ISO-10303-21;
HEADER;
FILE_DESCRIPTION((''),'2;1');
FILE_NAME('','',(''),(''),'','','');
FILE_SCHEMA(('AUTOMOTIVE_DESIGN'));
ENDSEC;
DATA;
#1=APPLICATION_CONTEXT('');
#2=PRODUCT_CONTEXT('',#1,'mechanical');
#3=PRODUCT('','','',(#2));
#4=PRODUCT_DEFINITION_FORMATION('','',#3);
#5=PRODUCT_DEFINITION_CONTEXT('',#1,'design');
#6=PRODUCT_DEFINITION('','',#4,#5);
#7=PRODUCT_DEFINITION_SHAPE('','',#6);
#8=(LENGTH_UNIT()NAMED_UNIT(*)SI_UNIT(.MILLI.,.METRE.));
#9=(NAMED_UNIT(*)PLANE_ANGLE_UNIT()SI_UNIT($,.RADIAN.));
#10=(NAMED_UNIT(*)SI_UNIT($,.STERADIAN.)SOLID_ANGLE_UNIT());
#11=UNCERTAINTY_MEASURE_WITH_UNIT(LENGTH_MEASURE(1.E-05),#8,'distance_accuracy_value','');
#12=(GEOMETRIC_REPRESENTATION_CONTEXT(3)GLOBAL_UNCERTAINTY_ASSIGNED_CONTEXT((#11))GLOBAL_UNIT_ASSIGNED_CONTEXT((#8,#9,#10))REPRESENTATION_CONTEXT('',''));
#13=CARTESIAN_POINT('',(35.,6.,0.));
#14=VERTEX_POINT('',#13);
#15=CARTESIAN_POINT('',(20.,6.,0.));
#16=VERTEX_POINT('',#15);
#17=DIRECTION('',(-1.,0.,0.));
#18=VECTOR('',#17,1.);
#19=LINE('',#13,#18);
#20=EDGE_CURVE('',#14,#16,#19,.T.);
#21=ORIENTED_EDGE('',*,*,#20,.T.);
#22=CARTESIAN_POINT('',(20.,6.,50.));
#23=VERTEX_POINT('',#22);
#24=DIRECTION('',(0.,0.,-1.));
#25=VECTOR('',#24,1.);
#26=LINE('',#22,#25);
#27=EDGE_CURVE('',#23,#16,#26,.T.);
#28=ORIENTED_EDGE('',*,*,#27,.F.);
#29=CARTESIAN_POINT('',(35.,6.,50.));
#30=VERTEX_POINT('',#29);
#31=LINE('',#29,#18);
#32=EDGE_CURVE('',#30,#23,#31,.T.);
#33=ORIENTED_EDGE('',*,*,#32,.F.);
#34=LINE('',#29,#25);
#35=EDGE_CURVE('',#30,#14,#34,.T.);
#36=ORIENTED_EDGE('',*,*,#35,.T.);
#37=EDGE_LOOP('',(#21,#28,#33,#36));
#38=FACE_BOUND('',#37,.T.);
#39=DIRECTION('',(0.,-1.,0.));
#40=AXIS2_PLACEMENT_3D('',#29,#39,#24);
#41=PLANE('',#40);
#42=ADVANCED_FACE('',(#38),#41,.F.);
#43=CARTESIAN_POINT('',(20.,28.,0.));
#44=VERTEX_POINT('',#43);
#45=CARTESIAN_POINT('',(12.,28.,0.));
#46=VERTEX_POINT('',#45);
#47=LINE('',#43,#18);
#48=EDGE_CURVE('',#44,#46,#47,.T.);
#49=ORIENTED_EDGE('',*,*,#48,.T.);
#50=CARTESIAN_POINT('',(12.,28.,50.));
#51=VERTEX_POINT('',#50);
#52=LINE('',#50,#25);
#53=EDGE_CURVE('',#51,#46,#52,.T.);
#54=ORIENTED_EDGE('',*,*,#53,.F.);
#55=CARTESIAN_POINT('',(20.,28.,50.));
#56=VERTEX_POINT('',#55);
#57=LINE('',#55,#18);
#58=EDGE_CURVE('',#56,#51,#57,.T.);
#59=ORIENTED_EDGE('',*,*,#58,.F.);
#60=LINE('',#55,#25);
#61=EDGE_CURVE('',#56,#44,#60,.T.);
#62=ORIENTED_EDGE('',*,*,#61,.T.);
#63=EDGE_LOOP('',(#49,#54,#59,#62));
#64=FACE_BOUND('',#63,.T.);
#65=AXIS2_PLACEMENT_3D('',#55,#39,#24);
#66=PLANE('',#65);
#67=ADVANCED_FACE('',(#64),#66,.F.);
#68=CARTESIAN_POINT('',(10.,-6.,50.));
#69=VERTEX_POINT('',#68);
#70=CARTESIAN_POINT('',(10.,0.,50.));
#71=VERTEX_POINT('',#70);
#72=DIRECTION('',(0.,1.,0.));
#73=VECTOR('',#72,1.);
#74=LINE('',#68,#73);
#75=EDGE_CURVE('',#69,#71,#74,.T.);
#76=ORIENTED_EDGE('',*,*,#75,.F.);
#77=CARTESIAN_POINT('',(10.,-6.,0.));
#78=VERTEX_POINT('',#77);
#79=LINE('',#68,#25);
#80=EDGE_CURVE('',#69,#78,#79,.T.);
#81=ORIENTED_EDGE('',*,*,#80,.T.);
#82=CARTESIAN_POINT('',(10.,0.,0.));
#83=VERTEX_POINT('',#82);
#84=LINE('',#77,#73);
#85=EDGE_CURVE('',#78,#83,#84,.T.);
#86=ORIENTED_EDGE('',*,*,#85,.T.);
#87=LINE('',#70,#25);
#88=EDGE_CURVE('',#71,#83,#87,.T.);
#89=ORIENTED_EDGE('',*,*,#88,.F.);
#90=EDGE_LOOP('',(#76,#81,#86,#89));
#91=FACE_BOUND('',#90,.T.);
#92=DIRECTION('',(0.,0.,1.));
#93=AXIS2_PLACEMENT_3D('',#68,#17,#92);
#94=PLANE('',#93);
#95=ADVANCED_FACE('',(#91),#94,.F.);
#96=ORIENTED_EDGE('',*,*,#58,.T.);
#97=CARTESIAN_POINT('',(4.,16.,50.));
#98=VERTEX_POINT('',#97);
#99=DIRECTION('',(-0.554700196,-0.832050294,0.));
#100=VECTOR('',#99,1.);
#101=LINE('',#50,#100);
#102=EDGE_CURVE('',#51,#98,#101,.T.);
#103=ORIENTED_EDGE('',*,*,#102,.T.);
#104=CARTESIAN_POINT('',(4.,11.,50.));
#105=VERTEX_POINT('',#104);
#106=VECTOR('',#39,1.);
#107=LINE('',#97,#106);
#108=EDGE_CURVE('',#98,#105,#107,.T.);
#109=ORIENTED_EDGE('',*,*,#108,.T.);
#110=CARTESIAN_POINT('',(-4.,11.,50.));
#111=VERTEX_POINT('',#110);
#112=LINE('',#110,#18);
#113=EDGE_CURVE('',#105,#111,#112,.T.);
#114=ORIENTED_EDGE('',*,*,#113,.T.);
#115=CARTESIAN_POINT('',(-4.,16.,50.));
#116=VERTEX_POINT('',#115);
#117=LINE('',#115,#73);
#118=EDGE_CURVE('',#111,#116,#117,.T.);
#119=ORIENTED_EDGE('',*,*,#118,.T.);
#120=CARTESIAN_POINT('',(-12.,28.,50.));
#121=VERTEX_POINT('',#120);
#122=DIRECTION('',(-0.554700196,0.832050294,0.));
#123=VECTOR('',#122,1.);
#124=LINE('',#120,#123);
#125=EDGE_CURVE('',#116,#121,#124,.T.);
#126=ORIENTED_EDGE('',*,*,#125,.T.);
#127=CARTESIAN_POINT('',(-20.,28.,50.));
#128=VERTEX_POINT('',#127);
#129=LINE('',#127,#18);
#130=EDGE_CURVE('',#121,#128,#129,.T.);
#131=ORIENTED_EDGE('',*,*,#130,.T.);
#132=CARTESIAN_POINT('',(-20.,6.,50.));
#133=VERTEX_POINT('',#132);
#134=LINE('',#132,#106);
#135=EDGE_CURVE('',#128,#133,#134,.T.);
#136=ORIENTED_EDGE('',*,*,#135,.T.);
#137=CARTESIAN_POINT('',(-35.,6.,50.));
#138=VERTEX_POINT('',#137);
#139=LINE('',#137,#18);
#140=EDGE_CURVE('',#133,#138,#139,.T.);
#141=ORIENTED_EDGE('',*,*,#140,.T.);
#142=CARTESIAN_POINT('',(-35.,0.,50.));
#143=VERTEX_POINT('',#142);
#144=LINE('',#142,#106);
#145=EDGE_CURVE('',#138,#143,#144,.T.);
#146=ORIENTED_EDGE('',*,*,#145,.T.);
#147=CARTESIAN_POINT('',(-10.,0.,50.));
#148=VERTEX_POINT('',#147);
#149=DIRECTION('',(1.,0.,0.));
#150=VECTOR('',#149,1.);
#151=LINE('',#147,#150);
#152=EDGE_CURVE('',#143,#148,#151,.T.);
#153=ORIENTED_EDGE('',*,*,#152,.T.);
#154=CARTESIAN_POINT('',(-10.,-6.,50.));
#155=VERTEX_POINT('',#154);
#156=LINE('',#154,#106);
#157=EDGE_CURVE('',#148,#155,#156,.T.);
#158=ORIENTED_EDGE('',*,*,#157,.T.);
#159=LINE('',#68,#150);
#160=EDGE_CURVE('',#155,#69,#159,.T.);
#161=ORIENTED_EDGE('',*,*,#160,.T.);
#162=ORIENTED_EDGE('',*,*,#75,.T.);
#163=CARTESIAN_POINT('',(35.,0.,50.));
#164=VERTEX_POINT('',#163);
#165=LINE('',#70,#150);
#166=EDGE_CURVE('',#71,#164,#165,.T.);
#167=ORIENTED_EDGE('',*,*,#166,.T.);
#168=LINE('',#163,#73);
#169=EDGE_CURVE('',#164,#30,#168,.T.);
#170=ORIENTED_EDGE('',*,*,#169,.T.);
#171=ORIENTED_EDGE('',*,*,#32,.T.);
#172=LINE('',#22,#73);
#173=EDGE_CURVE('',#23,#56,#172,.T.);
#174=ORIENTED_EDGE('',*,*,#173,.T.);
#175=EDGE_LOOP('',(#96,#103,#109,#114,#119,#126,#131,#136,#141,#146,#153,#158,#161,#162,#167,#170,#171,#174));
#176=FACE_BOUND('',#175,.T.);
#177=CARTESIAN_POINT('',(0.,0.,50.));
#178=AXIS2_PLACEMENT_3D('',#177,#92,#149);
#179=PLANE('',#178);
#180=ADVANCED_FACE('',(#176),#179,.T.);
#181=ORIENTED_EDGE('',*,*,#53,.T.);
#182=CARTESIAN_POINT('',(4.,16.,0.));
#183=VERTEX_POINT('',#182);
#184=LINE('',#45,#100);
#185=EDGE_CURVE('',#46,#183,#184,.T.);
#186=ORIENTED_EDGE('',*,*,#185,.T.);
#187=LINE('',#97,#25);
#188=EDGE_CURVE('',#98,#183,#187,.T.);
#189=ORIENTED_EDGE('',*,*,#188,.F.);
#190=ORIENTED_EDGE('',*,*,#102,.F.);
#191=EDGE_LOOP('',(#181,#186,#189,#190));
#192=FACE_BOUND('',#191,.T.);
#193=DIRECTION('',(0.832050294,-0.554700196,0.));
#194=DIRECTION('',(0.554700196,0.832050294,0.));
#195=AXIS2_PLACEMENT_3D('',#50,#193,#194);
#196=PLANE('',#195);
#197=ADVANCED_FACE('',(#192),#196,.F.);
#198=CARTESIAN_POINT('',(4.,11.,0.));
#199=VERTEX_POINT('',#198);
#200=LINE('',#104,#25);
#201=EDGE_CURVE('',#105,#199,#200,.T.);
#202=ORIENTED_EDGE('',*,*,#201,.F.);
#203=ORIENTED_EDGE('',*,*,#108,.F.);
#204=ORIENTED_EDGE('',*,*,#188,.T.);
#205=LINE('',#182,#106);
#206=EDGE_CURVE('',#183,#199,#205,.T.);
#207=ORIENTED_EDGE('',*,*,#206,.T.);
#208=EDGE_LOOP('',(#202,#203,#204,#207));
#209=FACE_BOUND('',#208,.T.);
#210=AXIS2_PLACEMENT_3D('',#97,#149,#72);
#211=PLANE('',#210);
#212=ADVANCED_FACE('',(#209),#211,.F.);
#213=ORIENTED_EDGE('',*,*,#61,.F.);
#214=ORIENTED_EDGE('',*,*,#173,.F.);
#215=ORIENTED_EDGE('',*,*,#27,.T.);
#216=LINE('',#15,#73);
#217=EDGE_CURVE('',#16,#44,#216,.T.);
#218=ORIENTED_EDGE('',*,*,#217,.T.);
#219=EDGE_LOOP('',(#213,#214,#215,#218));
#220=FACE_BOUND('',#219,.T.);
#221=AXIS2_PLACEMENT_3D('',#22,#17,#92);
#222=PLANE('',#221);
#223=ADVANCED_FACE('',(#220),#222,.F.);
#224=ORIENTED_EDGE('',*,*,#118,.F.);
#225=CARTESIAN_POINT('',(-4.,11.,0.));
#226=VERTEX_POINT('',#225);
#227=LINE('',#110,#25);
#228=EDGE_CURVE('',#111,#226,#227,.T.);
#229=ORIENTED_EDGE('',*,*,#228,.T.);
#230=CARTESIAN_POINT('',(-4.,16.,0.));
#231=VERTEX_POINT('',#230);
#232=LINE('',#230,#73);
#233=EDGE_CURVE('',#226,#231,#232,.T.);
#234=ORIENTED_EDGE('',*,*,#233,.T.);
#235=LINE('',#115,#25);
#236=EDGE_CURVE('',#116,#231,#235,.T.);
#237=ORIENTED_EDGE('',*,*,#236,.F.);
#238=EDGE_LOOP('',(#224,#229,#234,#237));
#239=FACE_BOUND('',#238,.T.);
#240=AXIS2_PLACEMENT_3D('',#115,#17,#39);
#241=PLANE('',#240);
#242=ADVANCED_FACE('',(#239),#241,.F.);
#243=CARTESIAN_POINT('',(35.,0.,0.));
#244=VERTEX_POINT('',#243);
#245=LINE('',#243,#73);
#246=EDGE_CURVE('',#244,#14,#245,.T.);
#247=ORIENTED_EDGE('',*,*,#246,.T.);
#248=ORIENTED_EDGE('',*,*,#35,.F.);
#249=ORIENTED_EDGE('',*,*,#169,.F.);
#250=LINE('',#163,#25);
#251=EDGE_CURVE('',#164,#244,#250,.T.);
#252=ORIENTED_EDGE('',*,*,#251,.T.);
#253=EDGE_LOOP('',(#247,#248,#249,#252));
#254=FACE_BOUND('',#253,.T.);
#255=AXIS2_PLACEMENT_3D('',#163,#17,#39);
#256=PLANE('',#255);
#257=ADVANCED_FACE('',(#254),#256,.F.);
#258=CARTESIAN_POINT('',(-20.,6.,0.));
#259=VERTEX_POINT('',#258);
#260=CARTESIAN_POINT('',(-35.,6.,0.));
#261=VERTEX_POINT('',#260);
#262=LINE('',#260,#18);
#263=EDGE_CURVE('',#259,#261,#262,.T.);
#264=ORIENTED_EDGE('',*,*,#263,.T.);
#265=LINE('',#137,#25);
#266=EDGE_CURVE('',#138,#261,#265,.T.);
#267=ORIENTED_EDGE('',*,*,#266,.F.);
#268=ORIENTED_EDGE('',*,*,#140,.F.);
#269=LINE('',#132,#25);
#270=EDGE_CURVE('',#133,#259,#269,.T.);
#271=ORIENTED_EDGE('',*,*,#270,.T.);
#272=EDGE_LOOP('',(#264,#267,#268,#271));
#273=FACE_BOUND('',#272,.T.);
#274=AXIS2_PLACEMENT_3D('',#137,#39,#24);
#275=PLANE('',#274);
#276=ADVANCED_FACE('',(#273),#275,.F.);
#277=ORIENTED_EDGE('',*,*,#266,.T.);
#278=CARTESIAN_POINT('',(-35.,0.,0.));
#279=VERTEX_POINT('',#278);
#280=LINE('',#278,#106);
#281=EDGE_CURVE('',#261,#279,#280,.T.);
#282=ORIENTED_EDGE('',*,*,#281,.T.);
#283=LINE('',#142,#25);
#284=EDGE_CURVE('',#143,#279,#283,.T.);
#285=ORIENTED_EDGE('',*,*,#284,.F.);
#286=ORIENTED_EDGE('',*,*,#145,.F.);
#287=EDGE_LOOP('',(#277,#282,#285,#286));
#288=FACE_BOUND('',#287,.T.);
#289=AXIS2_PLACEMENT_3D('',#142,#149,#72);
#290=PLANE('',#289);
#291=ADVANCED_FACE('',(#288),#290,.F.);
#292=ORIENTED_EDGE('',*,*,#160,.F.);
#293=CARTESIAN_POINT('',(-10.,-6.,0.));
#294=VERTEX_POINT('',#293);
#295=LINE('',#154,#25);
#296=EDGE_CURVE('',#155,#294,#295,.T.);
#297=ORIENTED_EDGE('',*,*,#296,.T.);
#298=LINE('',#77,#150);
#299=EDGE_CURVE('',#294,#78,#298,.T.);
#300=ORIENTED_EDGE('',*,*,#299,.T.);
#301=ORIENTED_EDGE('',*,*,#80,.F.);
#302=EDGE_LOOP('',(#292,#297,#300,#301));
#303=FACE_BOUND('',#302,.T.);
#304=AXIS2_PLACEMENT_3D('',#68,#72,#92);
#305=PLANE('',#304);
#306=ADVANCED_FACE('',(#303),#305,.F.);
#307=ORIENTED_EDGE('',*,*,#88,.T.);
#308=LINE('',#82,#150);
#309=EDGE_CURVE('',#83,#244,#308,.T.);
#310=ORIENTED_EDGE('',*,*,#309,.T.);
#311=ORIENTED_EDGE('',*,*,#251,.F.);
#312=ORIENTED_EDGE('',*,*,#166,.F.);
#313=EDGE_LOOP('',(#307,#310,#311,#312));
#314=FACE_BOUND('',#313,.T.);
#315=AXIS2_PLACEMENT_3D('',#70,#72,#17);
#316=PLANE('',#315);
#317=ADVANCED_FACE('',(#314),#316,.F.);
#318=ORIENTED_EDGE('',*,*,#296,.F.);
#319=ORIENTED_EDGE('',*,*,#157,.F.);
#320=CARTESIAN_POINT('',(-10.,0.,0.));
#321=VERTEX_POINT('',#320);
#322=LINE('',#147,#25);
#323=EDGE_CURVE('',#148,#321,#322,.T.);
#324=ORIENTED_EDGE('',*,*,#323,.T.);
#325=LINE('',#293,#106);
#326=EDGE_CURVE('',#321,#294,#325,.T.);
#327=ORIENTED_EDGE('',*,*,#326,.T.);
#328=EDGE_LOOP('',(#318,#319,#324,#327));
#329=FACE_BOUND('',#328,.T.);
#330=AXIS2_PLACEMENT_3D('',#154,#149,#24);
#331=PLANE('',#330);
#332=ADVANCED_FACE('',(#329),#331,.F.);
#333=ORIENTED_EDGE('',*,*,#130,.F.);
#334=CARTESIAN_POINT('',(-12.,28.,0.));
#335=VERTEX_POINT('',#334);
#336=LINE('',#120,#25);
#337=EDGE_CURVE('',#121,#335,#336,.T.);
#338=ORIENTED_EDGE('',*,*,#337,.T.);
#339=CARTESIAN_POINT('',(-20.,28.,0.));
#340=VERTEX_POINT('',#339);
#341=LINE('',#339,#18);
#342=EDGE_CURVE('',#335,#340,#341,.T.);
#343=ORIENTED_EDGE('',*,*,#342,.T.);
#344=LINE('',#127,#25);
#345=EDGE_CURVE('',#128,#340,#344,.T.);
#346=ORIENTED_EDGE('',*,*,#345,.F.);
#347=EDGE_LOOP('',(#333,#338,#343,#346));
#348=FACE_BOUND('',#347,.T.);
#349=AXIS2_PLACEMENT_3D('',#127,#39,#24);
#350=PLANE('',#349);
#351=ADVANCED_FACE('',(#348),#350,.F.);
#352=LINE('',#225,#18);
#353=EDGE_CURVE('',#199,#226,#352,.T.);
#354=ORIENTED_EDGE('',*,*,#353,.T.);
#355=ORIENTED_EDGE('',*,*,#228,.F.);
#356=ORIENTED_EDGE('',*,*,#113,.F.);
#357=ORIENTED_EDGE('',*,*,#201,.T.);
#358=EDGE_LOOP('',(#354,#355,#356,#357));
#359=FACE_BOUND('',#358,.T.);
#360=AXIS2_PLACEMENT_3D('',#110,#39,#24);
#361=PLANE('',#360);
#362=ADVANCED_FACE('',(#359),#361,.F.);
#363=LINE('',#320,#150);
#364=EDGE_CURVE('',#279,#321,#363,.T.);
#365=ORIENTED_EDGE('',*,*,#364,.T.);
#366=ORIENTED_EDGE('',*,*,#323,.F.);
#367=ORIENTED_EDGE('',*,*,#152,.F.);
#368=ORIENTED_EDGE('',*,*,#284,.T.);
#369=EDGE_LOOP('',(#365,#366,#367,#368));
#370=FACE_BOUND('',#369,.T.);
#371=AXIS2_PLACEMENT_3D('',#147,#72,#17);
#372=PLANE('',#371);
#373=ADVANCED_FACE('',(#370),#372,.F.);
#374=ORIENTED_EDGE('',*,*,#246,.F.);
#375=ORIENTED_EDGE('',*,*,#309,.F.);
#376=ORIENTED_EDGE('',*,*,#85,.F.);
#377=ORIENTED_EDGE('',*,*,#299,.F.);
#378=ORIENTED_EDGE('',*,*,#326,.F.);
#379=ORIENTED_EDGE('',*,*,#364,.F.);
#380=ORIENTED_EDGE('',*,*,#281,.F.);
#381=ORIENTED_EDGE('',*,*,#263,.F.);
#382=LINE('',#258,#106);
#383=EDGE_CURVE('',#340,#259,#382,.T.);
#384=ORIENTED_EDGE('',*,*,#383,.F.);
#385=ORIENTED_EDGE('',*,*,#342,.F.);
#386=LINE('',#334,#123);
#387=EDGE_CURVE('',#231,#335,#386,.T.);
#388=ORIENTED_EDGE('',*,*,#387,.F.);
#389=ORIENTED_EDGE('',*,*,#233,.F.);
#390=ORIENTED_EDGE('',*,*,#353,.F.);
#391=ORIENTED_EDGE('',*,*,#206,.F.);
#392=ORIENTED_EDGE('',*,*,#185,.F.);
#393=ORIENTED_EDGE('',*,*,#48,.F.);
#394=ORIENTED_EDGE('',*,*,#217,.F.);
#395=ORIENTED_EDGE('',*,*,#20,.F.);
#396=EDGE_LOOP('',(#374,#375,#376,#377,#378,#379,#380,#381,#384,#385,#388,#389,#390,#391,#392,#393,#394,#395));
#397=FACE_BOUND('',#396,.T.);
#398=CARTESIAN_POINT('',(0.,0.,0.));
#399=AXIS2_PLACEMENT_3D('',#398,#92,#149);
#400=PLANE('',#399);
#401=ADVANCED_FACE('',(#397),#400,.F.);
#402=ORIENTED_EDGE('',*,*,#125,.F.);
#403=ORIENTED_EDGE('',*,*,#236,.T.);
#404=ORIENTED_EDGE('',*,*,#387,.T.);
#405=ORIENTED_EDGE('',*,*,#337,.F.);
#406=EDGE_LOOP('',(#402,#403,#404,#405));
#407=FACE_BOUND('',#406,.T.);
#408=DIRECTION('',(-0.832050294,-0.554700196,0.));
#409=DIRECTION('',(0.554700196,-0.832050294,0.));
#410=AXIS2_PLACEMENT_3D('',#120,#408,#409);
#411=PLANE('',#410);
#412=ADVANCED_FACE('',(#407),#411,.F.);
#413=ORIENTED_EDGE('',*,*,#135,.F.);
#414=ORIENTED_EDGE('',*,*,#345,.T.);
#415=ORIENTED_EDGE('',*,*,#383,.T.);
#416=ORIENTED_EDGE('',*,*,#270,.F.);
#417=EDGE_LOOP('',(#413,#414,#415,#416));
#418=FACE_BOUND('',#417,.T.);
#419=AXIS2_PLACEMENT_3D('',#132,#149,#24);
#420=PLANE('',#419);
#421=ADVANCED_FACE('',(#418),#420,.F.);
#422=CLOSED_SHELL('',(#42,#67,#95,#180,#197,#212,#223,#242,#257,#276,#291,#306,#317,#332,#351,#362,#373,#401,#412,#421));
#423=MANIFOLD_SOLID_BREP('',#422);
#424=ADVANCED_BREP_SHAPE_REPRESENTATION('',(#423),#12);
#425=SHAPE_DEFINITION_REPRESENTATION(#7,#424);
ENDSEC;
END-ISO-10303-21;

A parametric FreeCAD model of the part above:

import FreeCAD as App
import Part
import Sketcher
from FreeCAD import Vector
Q = App.Units.Quantity


def add_polygon(sketch, points):
    """Adds a closed chain of lines whose ends are joined by coincident constraints."""
    first, n = sketch.GeometryCount, len(points)
    for a, b in zip(points, points[1:] + points[:1]):
        sketch.addGeometry(Part.LineSegment(App.Vector(*a, 0), App.Vector(*b, 0)), False)
    for i in range(n):
        sketch.addConstraint(Sketcher.Constraint("Coincident", first + i, 2, first + (i + 1) % n, 1))

doc = App.newDocument("Part")
body = doc.addObject("PartDesign::Body", "Body")

# Sketch on XY plane
sketch1 = body.newObject("Sketcher::SketchObject", "Sketch")
sketch1.AttachmentSupport = (doc.getObject("XY_Plane"), [""])
sketch1.MapMode = "FlatFace"
add_polygon(sketch1, [(-10, -6), (10, -6), (10, 0), (35, 0), (35, 6), (20, 6), (20, 28), (12, 28), (4, 16), (4, 11), (-4, 11), (-4, 16), (-12, 28), (-20, 28), (-20, 6), (-35, 6), (-35, 0), (-10, 0)])  # lines 0-17
sketch1.addConstraint([
    Sketcher.Constraint("Horizontal", 0),
    Sketcher.Constraint("Vertical", 1),
    Sketcher.Constraint("Horizontal", 2),
    Sketcher.Constraint("Vertical", 3),
    Sketcher.Constraint("Horizontal", 4),
    Sketcher.Constraint("Vertical", 5),
    Sketcher.Constraint("Horizontal", 6),
    Sketcher.Constraint("Vertical", 8),
    Sketcher.Constraint("Horizontal", 9),
    Sketcher.Constraint("Vertical", 10),
    Sketcher.Constraint("Horizontal", 12),
    Sketcher.Constraint("Vertical", 13),
    Sketcher.Constraint("Horizontal", 14),
    Sketcher.Constraint("Vertical", 15),
    Sketcher.Constraint("Horizontal", 16),
    Sketcher.Constraint("Vertical", 17),
    Sketcher.Constraint("Symmetric", 2, 2, 15, 2, -1, 1),
    Sketcher.Constraint("Symmetric", 7, 2, 10, 2, -2),
    Sketcher.Constraint("Symmetric", 6, 2, 11, 2, -2),
    Sketcher.Constraint("Symmetric", 4, 2, 13, 2, -2),
    Sketcher.Constraint("Symmetric", 1, 2, 16, 2, -2),
    Sketcher.Constraint("Equal", 6, 9),
    Sketcher.Constraint("Equal", 1, 3),
    Sketcher.Constraint("DistanceX", 0, 1, 0, 2, Q("20 mm")),
    Sketcher.Constraint("DistanceX", 2, 1, 2, 2, Q("25 mm")),
    Sketcher.Constraint("DistanceX", 4, 2, 4, 1, Q("15 mm")),
    Sketcher.Constraint("DistanceX", 6, 2, 6, 1, Q("8 mm")),
    Sketcher.Constraint("DistanceY", 1, 1, 1, 2, Q("6 mm")),
    Sketcher.Constraint("DistanceY", 5, 1, 5, 2, Q("22 mm")),
    Sketcher.Constraint("DistanceY", 8, 2, 8, 1, Q("5 mm")),
    Sketcher.Constraint("DistanceY", -1, 1, 7, 2, Q("16 mm")),
])
pad1 = body.newObject("PartDesign::Pad", "Pad")
pad1.Profile = sketch1
pad1.Length = 50

doc.recompute()
